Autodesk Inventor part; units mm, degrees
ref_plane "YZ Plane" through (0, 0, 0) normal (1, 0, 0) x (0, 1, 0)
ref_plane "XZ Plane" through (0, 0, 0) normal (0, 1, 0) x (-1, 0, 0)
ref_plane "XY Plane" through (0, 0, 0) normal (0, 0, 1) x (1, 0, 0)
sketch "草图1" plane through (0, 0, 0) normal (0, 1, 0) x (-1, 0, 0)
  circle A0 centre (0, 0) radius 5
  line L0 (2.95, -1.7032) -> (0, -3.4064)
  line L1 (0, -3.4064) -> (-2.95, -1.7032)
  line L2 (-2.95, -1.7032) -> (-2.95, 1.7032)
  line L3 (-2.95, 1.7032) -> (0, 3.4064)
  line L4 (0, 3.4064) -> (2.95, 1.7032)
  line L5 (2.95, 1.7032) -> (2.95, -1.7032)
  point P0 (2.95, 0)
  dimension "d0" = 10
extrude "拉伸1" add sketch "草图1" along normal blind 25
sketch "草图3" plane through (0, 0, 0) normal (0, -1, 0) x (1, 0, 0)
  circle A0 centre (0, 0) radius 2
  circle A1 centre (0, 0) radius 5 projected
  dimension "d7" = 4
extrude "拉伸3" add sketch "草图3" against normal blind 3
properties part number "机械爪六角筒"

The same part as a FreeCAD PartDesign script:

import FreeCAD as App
import Part
import Sketcher
Q = App.Units.Quantity


def add_polygon(sketch, points):
    """Adds a closed chain of lines whose ends are joined by coincident constraints."""
    first, n = sketch.GeometryCount, len(points)
    for a, b in zip(points, points[1:] + points[:1]):
        sketch.addGeometry(Part.LineSegment(App.Vector(*a, 0), App.Vector(*b, 0)), False)
    for i in range(n):
        sketch.addConstraint(Sketcher.Constraint("Coincident", first + i, 2, first + (i + 1) % n, 1))

doc = App.newDocument("Part")
body = doc.addObject("PartDesign::Body", "Body")

sketch1 = body.newObject("Sketcher::SketchObject", "Sketch")
sketch1.AttachmentSupport = (doc.getObject("XZ_Plane"), [""])
sketch1.MapMode = "FlatFace"
sketch1.addGeometry(Part.Circle(App.Vector(0, 0, 0), App.Vector(0, 0, 1), 5), False)
add_polygon(sketch1, [(-3, 1.7), (-3, -1.7), (0, -3.4), (3, -1.7), (3, 1.7), (0, 3.4)])
sketch1.addConstraint([
    Sketcher.Constraint("Vertical", 1),
    Sketcher.Constraint("Vertical", 4),
    Sketcher.Constraint("Coincident", 0, 3, -1, 1),
    Sketcher.Constraint("Symmetric", 1, 2, 4, 2, -1, 1),
    Sketcher.Constraint("Symmetric", 2, 2, 5, 2, -1, 1),
    Sketcher.Constraint("PointOnObject", 2, 2, -2),
    Sketcher.Constraint("Parallel", 3, 6),
    Sketcher.Constraint("Horizontal", 1, 2, 3, 2),
    Sketcher.Constraint("Diameter", 0, 10.0),
    Sketcher.Constraint("Angle", 2, Q("-30.0002 deg")),
    Sketcher.Constraint("DistanceX", 1, 2, 3, 2, 5.9),
    Sketcher.Constraint("DistanceY", 1, 2, 1, 1, 3.4064),
])
pad1 = body.newObject("PartDesign::Pad", "Pad")
pad1.Profile = sketch1
pad1.Length = 25
pad1.Reversed = True

sketch2 = body.newObject("Sketcher::SketchObject", "Sketch001")
sketch2.AttachmentSupport = (doc.getObject("XZ_Plane"), [""])
sketch2.MapMode = "FlatFace"
sketch2.addGeometry([
    Part.Circle(App.Vector(0, 0, 0), App.Vector(0, 0, 1), 5),
    Part.Circle(App.Vector(0, 0, 0), App.Vector(0, 0, 1), 2),
], False)
sketch2.addConstraint([
    Sketcher.Constraint("Coincident", 0, 3, -1, 1),
    Sketcher.Constraint("Coincident", 1, 3, -1, 1),
    Sketcher.Constraint("Diameter", 1, 4.0),
    Sketcher.Constraint("Diameter", 0, 10.0),
])
pad2 = body.newObject("PartDesign::Pad", "Pad001")
pad2.Profile = sketch2
pad2.Length = 3
pad2.Reversed = True

doc.recompute()
